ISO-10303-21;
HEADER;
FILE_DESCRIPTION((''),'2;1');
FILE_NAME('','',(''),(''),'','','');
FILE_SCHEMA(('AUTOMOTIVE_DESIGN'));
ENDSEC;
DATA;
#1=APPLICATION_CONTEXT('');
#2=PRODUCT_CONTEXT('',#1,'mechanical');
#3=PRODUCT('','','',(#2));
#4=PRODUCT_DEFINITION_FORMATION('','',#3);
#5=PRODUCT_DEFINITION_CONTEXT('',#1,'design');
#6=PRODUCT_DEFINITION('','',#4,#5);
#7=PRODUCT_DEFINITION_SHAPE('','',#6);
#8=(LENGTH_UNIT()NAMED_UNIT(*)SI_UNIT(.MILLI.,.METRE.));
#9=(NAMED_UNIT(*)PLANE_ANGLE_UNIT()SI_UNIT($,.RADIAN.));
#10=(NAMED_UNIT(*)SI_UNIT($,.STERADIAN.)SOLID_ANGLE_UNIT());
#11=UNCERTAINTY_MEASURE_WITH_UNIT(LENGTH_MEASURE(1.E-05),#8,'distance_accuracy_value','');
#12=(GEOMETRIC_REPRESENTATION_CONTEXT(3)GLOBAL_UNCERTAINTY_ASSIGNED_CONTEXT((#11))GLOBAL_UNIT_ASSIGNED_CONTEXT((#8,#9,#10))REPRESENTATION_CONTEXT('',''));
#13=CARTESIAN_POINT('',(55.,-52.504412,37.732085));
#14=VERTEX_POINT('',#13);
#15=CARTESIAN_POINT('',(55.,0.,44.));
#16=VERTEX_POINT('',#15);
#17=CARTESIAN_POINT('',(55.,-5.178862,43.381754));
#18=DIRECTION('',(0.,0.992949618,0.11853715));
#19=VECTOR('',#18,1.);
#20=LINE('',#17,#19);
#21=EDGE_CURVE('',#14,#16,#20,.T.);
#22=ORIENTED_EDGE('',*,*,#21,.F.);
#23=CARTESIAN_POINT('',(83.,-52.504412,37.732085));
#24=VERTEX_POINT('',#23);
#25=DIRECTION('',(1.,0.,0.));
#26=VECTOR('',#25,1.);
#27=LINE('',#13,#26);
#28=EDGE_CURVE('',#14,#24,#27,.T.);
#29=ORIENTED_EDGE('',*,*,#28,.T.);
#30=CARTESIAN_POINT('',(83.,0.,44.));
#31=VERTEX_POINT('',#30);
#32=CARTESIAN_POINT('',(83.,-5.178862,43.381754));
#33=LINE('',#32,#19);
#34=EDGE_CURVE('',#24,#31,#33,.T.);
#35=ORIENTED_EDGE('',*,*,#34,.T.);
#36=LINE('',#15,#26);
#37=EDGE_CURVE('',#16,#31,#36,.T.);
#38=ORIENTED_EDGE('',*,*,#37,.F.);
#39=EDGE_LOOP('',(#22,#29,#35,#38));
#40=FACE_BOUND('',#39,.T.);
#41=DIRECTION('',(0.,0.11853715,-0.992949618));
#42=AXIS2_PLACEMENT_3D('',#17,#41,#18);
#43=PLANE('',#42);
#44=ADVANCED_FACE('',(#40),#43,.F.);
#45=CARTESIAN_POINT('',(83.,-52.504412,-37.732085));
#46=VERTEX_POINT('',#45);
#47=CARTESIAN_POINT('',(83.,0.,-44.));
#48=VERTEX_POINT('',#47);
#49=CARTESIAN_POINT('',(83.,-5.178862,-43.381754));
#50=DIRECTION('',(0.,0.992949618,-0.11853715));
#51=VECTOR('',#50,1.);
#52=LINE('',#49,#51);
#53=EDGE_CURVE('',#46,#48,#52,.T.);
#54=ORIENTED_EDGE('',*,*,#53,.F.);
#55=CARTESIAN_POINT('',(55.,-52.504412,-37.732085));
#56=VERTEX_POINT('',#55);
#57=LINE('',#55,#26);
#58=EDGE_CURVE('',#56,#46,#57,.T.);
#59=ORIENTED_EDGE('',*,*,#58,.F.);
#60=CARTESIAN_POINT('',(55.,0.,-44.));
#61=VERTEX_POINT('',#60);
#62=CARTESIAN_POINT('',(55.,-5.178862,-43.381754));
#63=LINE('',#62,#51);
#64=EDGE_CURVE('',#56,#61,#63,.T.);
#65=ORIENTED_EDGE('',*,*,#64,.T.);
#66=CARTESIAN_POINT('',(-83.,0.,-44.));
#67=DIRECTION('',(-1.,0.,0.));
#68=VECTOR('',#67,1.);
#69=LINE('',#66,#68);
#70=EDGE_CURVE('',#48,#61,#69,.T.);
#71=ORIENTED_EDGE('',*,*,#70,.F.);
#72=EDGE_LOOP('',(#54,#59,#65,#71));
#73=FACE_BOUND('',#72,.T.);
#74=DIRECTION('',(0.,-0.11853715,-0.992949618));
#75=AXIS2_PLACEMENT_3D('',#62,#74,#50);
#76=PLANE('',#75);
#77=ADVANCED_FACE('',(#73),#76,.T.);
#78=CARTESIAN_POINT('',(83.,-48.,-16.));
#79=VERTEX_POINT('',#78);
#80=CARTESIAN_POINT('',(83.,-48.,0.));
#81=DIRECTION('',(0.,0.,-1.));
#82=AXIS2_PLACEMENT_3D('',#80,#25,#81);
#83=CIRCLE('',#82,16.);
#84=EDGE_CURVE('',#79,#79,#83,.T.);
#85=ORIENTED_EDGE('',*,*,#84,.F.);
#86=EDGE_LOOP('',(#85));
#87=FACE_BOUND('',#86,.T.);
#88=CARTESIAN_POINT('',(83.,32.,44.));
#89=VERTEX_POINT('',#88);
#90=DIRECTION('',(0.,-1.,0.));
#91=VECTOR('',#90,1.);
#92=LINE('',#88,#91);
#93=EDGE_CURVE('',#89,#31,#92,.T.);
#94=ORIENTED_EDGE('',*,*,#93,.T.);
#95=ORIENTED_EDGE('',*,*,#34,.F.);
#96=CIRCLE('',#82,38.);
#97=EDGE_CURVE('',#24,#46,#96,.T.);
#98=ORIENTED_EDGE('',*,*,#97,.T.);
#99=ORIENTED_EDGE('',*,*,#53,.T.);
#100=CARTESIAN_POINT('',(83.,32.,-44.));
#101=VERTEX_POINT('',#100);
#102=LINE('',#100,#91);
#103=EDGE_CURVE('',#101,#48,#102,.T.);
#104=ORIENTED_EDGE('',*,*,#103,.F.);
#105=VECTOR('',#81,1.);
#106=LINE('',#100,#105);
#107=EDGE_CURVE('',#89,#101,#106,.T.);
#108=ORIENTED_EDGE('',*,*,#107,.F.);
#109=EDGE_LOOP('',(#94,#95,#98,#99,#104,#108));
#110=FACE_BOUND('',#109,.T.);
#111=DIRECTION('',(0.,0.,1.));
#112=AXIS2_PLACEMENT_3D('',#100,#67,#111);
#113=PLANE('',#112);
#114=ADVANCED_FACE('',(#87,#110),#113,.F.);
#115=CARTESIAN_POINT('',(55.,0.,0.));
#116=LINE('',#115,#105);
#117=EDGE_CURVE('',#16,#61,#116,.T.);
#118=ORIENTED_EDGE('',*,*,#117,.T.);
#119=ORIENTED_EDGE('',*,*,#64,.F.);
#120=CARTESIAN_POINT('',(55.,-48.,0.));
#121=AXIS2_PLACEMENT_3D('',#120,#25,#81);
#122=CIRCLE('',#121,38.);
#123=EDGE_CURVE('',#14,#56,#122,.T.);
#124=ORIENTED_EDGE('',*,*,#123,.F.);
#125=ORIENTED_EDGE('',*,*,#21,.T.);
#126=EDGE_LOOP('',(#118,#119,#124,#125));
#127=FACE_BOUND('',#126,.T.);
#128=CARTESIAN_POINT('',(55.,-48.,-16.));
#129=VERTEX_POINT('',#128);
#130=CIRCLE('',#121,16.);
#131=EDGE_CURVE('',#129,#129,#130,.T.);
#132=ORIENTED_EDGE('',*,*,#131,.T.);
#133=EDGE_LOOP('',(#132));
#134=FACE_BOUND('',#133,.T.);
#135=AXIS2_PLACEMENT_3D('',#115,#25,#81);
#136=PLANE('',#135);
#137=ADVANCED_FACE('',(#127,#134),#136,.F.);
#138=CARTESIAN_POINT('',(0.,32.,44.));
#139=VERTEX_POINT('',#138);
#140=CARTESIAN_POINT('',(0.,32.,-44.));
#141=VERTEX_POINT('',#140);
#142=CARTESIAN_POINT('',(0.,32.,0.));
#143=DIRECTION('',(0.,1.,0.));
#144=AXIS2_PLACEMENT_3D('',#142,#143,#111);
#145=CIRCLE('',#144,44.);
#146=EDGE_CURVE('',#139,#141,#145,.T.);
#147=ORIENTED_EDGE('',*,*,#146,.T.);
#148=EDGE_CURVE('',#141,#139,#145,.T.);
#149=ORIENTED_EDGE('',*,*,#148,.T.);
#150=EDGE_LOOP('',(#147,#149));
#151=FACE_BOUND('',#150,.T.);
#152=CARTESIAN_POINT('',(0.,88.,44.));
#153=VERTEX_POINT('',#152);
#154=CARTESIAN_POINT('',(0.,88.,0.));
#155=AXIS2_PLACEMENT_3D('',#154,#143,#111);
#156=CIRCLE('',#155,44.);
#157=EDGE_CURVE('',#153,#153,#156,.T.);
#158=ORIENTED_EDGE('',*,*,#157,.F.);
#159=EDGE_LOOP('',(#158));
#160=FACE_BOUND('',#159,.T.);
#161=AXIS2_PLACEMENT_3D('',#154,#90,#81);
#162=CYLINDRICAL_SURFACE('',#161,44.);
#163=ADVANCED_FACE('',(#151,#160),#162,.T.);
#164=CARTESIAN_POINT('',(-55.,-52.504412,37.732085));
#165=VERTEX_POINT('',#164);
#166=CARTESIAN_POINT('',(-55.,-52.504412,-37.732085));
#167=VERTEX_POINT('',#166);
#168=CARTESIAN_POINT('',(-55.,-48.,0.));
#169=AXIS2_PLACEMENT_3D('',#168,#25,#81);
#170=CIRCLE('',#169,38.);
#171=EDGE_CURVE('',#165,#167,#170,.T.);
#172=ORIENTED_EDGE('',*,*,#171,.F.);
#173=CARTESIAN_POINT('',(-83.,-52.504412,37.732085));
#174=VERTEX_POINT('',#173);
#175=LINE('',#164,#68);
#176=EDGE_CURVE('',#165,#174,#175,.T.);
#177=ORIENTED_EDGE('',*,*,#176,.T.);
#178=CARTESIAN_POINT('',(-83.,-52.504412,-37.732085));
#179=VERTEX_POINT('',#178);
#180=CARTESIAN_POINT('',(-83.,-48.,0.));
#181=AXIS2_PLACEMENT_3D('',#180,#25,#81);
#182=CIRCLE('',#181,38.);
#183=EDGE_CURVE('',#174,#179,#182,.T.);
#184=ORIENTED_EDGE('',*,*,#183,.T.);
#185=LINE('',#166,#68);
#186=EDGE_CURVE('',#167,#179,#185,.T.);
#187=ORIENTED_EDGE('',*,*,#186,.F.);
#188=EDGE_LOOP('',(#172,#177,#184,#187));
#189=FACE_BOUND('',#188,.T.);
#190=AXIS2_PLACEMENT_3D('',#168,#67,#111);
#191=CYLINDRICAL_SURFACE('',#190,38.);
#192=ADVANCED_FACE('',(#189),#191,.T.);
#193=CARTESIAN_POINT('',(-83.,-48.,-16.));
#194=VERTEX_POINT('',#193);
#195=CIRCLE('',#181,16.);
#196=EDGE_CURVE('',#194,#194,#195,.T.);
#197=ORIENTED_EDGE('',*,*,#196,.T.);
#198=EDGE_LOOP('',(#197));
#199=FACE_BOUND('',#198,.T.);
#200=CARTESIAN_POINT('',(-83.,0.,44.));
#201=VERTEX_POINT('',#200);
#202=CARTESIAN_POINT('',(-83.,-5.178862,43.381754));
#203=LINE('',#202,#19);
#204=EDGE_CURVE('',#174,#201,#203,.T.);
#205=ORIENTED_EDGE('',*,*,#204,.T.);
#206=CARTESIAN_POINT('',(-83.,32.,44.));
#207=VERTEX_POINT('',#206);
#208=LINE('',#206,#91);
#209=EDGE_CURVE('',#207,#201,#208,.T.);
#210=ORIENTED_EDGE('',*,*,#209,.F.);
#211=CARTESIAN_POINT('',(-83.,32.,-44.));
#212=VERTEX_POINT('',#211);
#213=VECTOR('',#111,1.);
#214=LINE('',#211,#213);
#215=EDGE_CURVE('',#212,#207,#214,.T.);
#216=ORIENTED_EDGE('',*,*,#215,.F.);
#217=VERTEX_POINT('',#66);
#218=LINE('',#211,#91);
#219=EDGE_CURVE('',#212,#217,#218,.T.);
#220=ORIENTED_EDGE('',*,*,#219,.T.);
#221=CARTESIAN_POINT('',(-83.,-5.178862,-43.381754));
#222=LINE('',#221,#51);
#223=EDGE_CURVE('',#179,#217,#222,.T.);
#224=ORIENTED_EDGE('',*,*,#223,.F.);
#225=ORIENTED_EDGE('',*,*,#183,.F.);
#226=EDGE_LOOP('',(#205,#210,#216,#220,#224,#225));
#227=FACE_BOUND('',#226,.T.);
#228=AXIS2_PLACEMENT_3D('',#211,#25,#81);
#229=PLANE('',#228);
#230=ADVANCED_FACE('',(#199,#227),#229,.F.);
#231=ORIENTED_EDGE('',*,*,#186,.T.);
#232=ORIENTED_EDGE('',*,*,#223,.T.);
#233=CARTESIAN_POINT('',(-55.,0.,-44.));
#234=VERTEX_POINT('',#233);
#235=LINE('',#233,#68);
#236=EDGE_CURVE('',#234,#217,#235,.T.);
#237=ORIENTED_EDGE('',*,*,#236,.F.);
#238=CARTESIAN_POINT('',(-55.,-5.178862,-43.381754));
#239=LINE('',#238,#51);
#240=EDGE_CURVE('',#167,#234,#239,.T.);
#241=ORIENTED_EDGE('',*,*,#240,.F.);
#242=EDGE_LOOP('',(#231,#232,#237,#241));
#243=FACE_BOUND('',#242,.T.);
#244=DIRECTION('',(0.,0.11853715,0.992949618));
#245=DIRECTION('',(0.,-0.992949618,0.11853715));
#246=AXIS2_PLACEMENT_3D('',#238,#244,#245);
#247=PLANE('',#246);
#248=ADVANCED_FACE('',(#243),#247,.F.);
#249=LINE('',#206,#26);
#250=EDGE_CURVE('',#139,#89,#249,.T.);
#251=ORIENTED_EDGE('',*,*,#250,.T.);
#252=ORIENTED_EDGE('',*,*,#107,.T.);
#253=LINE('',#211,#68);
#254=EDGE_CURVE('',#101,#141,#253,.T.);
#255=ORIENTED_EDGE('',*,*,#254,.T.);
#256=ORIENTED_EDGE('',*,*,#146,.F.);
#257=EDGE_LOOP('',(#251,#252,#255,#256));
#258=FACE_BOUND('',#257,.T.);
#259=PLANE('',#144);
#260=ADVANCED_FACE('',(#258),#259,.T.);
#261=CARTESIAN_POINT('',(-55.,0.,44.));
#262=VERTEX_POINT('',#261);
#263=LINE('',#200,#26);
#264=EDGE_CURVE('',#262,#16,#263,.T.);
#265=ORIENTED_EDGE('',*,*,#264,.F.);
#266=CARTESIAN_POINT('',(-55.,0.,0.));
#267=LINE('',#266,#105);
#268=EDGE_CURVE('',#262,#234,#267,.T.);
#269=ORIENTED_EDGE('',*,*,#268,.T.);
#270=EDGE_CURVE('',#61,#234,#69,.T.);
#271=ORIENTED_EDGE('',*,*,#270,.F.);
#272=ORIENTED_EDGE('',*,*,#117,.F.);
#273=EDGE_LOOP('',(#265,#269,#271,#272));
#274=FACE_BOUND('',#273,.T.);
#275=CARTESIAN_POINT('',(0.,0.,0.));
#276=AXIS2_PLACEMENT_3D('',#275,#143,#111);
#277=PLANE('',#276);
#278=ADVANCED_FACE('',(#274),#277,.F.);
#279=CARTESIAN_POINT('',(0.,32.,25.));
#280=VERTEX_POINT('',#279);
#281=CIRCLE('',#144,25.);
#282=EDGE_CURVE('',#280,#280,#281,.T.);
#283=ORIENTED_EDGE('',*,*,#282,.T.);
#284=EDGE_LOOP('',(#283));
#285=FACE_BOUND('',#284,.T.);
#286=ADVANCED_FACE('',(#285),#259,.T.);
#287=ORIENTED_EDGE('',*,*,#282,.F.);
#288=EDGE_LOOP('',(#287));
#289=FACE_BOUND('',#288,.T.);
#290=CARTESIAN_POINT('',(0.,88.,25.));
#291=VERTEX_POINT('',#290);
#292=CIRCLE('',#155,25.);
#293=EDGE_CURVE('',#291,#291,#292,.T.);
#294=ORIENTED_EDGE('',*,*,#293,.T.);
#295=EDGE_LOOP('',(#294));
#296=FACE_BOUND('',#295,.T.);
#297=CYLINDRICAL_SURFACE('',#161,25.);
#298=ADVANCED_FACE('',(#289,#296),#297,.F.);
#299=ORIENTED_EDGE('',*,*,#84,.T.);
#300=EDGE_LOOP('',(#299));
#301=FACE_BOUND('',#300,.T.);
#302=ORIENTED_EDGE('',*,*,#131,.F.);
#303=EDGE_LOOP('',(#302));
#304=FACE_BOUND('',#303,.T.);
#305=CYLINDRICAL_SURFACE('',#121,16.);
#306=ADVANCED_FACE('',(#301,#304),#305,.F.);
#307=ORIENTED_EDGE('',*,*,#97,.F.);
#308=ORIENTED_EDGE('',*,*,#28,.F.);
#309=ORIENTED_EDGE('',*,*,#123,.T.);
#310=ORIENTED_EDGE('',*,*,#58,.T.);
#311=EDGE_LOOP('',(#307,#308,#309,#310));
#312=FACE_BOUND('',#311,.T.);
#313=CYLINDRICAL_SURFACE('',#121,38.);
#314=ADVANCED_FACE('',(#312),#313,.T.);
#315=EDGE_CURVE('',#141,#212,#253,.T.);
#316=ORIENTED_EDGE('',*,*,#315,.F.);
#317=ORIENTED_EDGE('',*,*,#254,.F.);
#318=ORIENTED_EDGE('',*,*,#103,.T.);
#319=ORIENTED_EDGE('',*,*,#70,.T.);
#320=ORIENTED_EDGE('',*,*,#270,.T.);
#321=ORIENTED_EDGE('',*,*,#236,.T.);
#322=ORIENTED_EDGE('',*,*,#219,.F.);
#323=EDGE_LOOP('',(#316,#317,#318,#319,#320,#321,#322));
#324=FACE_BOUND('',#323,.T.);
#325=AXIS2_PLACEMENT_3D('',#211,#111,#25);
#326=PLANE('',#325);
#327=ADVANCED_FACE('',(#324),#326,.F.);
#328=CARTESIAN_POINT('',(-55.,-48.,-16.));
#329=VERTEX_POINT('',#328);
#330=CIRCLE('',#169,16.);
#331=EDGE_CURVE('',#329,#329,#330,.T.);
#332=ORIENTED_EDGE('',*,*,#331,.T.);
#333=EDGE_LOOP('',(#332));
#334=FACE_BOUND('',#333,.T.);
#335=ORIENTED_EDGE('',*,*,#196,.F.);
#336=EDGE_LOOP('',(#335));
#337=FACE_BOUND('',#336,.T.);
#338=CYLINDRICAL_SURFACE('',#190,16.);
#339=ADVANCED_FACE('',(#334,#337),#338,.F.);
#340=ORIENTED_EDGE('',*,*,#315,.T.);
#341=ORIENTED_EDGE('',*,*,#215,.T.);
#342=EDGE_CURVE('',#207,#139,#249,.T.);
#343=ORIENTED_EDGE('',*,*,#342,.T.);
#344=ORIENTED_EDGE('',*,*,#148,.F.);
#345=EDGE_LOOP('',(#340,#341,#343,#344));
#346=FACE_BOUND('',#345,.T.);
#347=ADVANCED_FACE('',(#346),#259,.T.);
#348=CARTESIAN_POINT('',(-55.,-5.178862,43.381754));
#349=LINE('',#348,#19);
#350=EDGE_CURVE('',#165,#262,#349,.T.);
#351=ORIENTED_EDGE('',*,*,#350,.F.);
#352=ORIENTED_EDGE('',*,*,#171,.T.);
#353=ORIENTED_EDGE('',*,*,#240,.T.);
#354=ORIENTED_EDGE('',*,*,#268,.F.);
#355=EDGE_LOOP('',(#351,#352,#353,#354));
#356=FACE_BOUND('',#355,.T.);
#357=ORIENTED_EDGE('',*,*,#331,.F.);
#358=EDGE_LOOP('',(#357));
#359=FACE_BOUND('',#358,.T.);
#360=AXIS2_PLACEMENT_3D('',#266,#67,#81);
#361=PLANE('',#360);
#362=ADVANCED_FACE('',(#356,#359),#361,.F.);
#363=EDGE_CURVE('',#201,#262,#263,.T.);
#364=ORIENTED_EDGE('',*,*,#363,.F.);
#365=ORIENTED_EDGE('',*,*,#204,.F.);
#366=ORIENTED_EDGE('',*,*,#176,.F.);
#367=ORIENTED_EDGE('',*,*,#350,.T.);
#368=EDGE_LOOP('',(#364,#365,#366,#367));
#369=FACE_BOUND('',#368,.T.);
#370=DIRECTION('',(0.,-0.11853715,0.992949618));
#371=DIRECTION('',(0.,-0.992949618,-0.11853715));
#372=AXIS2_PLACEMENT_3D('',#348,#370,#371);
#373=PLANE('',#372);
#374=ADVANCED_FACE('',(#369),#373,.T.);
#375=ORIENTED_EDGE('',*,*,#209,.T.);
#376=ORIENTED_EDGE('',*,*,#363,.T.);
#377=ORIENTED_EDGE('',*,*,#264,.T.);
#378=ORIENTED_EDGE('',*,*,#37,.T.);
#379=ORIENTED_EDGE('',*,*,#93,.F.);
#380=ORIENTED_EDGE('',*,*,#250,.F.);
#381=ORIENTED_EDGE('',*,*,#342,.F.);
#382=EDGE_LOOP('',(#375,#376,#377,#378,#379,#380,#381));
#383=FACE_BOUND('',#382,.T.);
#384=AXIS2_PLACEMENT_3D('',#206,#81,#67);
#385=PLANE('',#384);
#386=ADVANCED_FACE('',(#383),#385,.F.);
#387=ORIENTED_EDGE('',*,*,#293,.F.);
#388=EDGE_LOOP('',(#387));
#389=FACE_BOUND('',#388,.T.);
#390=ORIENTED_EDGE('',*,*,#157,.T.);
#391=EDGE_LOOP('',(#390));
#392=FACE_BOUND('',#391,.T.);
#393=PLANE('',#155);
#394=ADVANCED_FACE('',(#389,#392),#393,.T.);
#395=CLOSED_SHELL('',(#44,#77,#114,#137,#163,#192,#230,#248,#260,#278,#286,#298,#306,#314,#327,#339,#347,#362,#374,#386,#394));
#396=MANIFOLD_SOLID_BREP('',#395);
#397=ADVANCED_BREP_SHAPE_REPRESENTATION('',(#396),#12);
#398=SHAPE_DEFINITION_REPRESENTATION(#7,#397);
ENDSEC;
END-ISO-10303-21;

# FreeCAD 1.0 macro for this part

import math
import FreeCAD as App
import Part
import Sketcher
from FreeCAD import Vector

doc = App.newDocument("Part")
params = doc.addObject("Spreadsheet::Sheet", "Params")
for row, (alias, value) in enumerate([
    ("sketch1_width", "166 mm"),
    ("sketch1_height", "88 mm"),
    ("pad1_length", "32 mm"),
    ("sketch2_diameter", "88 mm"),
    ("sketch2_diameter2", "50 mm"),
    ("pad2_length", "56 mm"),
    ("sketch3_diameter", "32 mm"),
    ("sketch3_radius", "38 mm"),
    ("sketch3_height", "88 mm"),
    ("pad3_length", "28 mm"),
], start=1):
    params.set(f"A{row}", alias)
    params.set(f"B{row}", "=" + value)
    params.setAlias(f"B{row}", alias)

body = doc.addObject("PartDesign::Body", "Body")

# Sketch on XZ plane
sketch1 = body.newObject("Sketcher::SketchObject", "Sketch")
sketch1.AttachmentSupport = (doc.getObject("XZ_Plane"), [""])
sketch1.MapMode = "FlatFace"
sketch1.addGeometry([
    Part.LineSegment(Vector(-83, -44, 0), Vector(-83, 44, 0)),
    Part.LineSegment(Vector(-83, 44, 0), Vector(83, 44, 0)),
    Part.LineSegment(Vector(83, 44, 0), Vector(83, -44, 0)),
    Part.LineSegment(Vector(83, -44, 0), Vector(-83, -44, 0)),
], False)
sketch1.addConstraint([
    Sketcher.Constraint("Coincident", 0, 2, 1, 1),
    Sketcher.Constraint("Coincident", 1, 2, 2, 1),
    Sketcher.Constraint("Coincident", 2, 2, 3, 1),
    Sketcher.Constraint("Coincident", 3, 2, 0, 1),
    Sketcher.Constraint("Vertical", 0),
    Sketcher.Constraint("Horizontal", 1),
    Sketcher.Constraint("Vertical", 2),
    Sketcher.Constraint("Horizontal", 3),
    Sketcher.Constraint("Symmetric", 0, 2, 2, 2, -1, 1),
    Sketcher.Constraint("DistanceX", 1, 1, 1, 2, 166.0),
    Sketcher.Constraint("DistanceY", 0, 1, 0, 2, 88.0),
])
sketch1.setExpression("Constraints[9]", "Params.sketch1_width")
sketch1.setExpression("Constraints[10]", "Params.sketch1_height")
pad1 = body.newObject("PartDesign::Pad", "Pad")
pad1.Profile = sketch1
pad1.setExpression("Length", "Params.pad1_length")
pad1.Reversed = True

# Sketch on XZ plane
sketch2 = body.newObject("Sketcher::SketchObject", "Sketch001")
sketch2.AttachmentSupport = (doc.getObject("XZ_Plane"), [""])
sketch2.MapMode = "FlatFace"
sketch2.AttachmentOffset = App.Placement(Vector(0, 0, -32), App.Rotation())
sketch2.addGeometry([
    Part.Circle(Vector(0, 0, 0), Vector(0, 0, 1), 44),
    Part.Circle(Vector(0, 0, 0), Vector(0, 0, 1), 25),
], False)
sketch2.addConstraint([
    Sketcher.Constraint("Coincident", 0, 3, -1, 1),
    Sketcher.Constraint("Coincident", 1, 3, -1, 1),
    Sketcher.Constraint("Diameter", 0, 88.0),
    Sketcher.Constraint("Diameter", 1, 50.0),
])
sketch2.setExpression("Constraints[2]", "Params.sketch2_diameter")
sketch2.setExpression("Constraints[3]", "Params.sketch2_diameter2")
pad2 = body.newObject("PartDesign::Pad", "Pad001")
pad2.Profile = sketch2
pad2.setExpression("Length", "Params.pad2_length")
pad2.Reversed = True

# Sketch on YZ plane
sketch3 = body.newObject("Sketcher::SketchObject", "Sketch002")
sketch3.AttachmentSupport = (doc.getObject("YZ_Plane"), [""])
sketch3.MapMode = "FlatFace"
sketch3.AttachmentOffset = App.Placement(Vector(0, 0, 83), App.Rotation())
sketch3.addGeometry([
    Part.LineSegment(Vector(0, 44, 0), Vector(-53, 38, 0)),  # 0
    Part.ArcOfCircle(Part.Circle(Vector(-48, 0, 0), Vector(0, 0, 1), 38), math.radians(97), math.radians(263)),  # 1
    Part.LineSegment(Vector(-53, -38, 0), Vector(0, -44, 0)),  # 2
    Part.LineSegment(Vector(0, -44, 0), Vector(0, 44, 0)),  # 3
    Part.Circle(Vector(-48, 0, 0), Vector(0, 0, 1), 16),  # 4
], False)
sketch3.addConstraint([
    Sketcher.Constraint("Tangent", 0, 2, 1, 1),
    Sketcher.Constraint("Tangent", 1, 2, 2, 1),
    Sketcher.Constraint("Coincident", 2, 2, 3, 1),
    Sketcher.Constraint("Coincident", 3, 2, 0, 1),
    Sketcher.Constraint("Vertical", 3),
    Sketcher.Constraint("Coincident", 4, 3, 1, 3),
    Sketcher.Constraint("Symmetric", 2, 2, 3, 2, -1, 1),
    Sketcher.Constraint("PointOnObject", 1, 3, -1),
    Sketcher.Constraint("Diameter", 4, 32.0),
    Sketcher.Constraint("Radius", 1, 38.0),
    Sketcher.Constraint("DistanceY", 3, 1, 3, 2, 88.0),
    Sketcher.Constraint("DistanceX", 1, 3, -1, 1, 48.0),
])
sketch3.setExpression("Constraints[8]", "Params.sketch3_diameter")
sketch3.setExpression("Constraints[9]", "Params.sketch3_radius")
sketch3.setExpression("Constraints[10]", "Params.sketch3_height")
pad3 = body.newObject("PartDesign::Pad", "Pad002")
pad3.Profile = sketch3
pad3.setExpression("Length", "Params.pad3_length")
pad3.Reversed = True
doc.recompute()

mirrored = body.newObject("PartDesign::Mirrored", "Mirrored")
mirrored.Originals = [pad3]
mirrored.MirrorPlane = (doc.getObject("YZ_Plane"), [""])
body.Tip = mirrored

doc.recompute()
